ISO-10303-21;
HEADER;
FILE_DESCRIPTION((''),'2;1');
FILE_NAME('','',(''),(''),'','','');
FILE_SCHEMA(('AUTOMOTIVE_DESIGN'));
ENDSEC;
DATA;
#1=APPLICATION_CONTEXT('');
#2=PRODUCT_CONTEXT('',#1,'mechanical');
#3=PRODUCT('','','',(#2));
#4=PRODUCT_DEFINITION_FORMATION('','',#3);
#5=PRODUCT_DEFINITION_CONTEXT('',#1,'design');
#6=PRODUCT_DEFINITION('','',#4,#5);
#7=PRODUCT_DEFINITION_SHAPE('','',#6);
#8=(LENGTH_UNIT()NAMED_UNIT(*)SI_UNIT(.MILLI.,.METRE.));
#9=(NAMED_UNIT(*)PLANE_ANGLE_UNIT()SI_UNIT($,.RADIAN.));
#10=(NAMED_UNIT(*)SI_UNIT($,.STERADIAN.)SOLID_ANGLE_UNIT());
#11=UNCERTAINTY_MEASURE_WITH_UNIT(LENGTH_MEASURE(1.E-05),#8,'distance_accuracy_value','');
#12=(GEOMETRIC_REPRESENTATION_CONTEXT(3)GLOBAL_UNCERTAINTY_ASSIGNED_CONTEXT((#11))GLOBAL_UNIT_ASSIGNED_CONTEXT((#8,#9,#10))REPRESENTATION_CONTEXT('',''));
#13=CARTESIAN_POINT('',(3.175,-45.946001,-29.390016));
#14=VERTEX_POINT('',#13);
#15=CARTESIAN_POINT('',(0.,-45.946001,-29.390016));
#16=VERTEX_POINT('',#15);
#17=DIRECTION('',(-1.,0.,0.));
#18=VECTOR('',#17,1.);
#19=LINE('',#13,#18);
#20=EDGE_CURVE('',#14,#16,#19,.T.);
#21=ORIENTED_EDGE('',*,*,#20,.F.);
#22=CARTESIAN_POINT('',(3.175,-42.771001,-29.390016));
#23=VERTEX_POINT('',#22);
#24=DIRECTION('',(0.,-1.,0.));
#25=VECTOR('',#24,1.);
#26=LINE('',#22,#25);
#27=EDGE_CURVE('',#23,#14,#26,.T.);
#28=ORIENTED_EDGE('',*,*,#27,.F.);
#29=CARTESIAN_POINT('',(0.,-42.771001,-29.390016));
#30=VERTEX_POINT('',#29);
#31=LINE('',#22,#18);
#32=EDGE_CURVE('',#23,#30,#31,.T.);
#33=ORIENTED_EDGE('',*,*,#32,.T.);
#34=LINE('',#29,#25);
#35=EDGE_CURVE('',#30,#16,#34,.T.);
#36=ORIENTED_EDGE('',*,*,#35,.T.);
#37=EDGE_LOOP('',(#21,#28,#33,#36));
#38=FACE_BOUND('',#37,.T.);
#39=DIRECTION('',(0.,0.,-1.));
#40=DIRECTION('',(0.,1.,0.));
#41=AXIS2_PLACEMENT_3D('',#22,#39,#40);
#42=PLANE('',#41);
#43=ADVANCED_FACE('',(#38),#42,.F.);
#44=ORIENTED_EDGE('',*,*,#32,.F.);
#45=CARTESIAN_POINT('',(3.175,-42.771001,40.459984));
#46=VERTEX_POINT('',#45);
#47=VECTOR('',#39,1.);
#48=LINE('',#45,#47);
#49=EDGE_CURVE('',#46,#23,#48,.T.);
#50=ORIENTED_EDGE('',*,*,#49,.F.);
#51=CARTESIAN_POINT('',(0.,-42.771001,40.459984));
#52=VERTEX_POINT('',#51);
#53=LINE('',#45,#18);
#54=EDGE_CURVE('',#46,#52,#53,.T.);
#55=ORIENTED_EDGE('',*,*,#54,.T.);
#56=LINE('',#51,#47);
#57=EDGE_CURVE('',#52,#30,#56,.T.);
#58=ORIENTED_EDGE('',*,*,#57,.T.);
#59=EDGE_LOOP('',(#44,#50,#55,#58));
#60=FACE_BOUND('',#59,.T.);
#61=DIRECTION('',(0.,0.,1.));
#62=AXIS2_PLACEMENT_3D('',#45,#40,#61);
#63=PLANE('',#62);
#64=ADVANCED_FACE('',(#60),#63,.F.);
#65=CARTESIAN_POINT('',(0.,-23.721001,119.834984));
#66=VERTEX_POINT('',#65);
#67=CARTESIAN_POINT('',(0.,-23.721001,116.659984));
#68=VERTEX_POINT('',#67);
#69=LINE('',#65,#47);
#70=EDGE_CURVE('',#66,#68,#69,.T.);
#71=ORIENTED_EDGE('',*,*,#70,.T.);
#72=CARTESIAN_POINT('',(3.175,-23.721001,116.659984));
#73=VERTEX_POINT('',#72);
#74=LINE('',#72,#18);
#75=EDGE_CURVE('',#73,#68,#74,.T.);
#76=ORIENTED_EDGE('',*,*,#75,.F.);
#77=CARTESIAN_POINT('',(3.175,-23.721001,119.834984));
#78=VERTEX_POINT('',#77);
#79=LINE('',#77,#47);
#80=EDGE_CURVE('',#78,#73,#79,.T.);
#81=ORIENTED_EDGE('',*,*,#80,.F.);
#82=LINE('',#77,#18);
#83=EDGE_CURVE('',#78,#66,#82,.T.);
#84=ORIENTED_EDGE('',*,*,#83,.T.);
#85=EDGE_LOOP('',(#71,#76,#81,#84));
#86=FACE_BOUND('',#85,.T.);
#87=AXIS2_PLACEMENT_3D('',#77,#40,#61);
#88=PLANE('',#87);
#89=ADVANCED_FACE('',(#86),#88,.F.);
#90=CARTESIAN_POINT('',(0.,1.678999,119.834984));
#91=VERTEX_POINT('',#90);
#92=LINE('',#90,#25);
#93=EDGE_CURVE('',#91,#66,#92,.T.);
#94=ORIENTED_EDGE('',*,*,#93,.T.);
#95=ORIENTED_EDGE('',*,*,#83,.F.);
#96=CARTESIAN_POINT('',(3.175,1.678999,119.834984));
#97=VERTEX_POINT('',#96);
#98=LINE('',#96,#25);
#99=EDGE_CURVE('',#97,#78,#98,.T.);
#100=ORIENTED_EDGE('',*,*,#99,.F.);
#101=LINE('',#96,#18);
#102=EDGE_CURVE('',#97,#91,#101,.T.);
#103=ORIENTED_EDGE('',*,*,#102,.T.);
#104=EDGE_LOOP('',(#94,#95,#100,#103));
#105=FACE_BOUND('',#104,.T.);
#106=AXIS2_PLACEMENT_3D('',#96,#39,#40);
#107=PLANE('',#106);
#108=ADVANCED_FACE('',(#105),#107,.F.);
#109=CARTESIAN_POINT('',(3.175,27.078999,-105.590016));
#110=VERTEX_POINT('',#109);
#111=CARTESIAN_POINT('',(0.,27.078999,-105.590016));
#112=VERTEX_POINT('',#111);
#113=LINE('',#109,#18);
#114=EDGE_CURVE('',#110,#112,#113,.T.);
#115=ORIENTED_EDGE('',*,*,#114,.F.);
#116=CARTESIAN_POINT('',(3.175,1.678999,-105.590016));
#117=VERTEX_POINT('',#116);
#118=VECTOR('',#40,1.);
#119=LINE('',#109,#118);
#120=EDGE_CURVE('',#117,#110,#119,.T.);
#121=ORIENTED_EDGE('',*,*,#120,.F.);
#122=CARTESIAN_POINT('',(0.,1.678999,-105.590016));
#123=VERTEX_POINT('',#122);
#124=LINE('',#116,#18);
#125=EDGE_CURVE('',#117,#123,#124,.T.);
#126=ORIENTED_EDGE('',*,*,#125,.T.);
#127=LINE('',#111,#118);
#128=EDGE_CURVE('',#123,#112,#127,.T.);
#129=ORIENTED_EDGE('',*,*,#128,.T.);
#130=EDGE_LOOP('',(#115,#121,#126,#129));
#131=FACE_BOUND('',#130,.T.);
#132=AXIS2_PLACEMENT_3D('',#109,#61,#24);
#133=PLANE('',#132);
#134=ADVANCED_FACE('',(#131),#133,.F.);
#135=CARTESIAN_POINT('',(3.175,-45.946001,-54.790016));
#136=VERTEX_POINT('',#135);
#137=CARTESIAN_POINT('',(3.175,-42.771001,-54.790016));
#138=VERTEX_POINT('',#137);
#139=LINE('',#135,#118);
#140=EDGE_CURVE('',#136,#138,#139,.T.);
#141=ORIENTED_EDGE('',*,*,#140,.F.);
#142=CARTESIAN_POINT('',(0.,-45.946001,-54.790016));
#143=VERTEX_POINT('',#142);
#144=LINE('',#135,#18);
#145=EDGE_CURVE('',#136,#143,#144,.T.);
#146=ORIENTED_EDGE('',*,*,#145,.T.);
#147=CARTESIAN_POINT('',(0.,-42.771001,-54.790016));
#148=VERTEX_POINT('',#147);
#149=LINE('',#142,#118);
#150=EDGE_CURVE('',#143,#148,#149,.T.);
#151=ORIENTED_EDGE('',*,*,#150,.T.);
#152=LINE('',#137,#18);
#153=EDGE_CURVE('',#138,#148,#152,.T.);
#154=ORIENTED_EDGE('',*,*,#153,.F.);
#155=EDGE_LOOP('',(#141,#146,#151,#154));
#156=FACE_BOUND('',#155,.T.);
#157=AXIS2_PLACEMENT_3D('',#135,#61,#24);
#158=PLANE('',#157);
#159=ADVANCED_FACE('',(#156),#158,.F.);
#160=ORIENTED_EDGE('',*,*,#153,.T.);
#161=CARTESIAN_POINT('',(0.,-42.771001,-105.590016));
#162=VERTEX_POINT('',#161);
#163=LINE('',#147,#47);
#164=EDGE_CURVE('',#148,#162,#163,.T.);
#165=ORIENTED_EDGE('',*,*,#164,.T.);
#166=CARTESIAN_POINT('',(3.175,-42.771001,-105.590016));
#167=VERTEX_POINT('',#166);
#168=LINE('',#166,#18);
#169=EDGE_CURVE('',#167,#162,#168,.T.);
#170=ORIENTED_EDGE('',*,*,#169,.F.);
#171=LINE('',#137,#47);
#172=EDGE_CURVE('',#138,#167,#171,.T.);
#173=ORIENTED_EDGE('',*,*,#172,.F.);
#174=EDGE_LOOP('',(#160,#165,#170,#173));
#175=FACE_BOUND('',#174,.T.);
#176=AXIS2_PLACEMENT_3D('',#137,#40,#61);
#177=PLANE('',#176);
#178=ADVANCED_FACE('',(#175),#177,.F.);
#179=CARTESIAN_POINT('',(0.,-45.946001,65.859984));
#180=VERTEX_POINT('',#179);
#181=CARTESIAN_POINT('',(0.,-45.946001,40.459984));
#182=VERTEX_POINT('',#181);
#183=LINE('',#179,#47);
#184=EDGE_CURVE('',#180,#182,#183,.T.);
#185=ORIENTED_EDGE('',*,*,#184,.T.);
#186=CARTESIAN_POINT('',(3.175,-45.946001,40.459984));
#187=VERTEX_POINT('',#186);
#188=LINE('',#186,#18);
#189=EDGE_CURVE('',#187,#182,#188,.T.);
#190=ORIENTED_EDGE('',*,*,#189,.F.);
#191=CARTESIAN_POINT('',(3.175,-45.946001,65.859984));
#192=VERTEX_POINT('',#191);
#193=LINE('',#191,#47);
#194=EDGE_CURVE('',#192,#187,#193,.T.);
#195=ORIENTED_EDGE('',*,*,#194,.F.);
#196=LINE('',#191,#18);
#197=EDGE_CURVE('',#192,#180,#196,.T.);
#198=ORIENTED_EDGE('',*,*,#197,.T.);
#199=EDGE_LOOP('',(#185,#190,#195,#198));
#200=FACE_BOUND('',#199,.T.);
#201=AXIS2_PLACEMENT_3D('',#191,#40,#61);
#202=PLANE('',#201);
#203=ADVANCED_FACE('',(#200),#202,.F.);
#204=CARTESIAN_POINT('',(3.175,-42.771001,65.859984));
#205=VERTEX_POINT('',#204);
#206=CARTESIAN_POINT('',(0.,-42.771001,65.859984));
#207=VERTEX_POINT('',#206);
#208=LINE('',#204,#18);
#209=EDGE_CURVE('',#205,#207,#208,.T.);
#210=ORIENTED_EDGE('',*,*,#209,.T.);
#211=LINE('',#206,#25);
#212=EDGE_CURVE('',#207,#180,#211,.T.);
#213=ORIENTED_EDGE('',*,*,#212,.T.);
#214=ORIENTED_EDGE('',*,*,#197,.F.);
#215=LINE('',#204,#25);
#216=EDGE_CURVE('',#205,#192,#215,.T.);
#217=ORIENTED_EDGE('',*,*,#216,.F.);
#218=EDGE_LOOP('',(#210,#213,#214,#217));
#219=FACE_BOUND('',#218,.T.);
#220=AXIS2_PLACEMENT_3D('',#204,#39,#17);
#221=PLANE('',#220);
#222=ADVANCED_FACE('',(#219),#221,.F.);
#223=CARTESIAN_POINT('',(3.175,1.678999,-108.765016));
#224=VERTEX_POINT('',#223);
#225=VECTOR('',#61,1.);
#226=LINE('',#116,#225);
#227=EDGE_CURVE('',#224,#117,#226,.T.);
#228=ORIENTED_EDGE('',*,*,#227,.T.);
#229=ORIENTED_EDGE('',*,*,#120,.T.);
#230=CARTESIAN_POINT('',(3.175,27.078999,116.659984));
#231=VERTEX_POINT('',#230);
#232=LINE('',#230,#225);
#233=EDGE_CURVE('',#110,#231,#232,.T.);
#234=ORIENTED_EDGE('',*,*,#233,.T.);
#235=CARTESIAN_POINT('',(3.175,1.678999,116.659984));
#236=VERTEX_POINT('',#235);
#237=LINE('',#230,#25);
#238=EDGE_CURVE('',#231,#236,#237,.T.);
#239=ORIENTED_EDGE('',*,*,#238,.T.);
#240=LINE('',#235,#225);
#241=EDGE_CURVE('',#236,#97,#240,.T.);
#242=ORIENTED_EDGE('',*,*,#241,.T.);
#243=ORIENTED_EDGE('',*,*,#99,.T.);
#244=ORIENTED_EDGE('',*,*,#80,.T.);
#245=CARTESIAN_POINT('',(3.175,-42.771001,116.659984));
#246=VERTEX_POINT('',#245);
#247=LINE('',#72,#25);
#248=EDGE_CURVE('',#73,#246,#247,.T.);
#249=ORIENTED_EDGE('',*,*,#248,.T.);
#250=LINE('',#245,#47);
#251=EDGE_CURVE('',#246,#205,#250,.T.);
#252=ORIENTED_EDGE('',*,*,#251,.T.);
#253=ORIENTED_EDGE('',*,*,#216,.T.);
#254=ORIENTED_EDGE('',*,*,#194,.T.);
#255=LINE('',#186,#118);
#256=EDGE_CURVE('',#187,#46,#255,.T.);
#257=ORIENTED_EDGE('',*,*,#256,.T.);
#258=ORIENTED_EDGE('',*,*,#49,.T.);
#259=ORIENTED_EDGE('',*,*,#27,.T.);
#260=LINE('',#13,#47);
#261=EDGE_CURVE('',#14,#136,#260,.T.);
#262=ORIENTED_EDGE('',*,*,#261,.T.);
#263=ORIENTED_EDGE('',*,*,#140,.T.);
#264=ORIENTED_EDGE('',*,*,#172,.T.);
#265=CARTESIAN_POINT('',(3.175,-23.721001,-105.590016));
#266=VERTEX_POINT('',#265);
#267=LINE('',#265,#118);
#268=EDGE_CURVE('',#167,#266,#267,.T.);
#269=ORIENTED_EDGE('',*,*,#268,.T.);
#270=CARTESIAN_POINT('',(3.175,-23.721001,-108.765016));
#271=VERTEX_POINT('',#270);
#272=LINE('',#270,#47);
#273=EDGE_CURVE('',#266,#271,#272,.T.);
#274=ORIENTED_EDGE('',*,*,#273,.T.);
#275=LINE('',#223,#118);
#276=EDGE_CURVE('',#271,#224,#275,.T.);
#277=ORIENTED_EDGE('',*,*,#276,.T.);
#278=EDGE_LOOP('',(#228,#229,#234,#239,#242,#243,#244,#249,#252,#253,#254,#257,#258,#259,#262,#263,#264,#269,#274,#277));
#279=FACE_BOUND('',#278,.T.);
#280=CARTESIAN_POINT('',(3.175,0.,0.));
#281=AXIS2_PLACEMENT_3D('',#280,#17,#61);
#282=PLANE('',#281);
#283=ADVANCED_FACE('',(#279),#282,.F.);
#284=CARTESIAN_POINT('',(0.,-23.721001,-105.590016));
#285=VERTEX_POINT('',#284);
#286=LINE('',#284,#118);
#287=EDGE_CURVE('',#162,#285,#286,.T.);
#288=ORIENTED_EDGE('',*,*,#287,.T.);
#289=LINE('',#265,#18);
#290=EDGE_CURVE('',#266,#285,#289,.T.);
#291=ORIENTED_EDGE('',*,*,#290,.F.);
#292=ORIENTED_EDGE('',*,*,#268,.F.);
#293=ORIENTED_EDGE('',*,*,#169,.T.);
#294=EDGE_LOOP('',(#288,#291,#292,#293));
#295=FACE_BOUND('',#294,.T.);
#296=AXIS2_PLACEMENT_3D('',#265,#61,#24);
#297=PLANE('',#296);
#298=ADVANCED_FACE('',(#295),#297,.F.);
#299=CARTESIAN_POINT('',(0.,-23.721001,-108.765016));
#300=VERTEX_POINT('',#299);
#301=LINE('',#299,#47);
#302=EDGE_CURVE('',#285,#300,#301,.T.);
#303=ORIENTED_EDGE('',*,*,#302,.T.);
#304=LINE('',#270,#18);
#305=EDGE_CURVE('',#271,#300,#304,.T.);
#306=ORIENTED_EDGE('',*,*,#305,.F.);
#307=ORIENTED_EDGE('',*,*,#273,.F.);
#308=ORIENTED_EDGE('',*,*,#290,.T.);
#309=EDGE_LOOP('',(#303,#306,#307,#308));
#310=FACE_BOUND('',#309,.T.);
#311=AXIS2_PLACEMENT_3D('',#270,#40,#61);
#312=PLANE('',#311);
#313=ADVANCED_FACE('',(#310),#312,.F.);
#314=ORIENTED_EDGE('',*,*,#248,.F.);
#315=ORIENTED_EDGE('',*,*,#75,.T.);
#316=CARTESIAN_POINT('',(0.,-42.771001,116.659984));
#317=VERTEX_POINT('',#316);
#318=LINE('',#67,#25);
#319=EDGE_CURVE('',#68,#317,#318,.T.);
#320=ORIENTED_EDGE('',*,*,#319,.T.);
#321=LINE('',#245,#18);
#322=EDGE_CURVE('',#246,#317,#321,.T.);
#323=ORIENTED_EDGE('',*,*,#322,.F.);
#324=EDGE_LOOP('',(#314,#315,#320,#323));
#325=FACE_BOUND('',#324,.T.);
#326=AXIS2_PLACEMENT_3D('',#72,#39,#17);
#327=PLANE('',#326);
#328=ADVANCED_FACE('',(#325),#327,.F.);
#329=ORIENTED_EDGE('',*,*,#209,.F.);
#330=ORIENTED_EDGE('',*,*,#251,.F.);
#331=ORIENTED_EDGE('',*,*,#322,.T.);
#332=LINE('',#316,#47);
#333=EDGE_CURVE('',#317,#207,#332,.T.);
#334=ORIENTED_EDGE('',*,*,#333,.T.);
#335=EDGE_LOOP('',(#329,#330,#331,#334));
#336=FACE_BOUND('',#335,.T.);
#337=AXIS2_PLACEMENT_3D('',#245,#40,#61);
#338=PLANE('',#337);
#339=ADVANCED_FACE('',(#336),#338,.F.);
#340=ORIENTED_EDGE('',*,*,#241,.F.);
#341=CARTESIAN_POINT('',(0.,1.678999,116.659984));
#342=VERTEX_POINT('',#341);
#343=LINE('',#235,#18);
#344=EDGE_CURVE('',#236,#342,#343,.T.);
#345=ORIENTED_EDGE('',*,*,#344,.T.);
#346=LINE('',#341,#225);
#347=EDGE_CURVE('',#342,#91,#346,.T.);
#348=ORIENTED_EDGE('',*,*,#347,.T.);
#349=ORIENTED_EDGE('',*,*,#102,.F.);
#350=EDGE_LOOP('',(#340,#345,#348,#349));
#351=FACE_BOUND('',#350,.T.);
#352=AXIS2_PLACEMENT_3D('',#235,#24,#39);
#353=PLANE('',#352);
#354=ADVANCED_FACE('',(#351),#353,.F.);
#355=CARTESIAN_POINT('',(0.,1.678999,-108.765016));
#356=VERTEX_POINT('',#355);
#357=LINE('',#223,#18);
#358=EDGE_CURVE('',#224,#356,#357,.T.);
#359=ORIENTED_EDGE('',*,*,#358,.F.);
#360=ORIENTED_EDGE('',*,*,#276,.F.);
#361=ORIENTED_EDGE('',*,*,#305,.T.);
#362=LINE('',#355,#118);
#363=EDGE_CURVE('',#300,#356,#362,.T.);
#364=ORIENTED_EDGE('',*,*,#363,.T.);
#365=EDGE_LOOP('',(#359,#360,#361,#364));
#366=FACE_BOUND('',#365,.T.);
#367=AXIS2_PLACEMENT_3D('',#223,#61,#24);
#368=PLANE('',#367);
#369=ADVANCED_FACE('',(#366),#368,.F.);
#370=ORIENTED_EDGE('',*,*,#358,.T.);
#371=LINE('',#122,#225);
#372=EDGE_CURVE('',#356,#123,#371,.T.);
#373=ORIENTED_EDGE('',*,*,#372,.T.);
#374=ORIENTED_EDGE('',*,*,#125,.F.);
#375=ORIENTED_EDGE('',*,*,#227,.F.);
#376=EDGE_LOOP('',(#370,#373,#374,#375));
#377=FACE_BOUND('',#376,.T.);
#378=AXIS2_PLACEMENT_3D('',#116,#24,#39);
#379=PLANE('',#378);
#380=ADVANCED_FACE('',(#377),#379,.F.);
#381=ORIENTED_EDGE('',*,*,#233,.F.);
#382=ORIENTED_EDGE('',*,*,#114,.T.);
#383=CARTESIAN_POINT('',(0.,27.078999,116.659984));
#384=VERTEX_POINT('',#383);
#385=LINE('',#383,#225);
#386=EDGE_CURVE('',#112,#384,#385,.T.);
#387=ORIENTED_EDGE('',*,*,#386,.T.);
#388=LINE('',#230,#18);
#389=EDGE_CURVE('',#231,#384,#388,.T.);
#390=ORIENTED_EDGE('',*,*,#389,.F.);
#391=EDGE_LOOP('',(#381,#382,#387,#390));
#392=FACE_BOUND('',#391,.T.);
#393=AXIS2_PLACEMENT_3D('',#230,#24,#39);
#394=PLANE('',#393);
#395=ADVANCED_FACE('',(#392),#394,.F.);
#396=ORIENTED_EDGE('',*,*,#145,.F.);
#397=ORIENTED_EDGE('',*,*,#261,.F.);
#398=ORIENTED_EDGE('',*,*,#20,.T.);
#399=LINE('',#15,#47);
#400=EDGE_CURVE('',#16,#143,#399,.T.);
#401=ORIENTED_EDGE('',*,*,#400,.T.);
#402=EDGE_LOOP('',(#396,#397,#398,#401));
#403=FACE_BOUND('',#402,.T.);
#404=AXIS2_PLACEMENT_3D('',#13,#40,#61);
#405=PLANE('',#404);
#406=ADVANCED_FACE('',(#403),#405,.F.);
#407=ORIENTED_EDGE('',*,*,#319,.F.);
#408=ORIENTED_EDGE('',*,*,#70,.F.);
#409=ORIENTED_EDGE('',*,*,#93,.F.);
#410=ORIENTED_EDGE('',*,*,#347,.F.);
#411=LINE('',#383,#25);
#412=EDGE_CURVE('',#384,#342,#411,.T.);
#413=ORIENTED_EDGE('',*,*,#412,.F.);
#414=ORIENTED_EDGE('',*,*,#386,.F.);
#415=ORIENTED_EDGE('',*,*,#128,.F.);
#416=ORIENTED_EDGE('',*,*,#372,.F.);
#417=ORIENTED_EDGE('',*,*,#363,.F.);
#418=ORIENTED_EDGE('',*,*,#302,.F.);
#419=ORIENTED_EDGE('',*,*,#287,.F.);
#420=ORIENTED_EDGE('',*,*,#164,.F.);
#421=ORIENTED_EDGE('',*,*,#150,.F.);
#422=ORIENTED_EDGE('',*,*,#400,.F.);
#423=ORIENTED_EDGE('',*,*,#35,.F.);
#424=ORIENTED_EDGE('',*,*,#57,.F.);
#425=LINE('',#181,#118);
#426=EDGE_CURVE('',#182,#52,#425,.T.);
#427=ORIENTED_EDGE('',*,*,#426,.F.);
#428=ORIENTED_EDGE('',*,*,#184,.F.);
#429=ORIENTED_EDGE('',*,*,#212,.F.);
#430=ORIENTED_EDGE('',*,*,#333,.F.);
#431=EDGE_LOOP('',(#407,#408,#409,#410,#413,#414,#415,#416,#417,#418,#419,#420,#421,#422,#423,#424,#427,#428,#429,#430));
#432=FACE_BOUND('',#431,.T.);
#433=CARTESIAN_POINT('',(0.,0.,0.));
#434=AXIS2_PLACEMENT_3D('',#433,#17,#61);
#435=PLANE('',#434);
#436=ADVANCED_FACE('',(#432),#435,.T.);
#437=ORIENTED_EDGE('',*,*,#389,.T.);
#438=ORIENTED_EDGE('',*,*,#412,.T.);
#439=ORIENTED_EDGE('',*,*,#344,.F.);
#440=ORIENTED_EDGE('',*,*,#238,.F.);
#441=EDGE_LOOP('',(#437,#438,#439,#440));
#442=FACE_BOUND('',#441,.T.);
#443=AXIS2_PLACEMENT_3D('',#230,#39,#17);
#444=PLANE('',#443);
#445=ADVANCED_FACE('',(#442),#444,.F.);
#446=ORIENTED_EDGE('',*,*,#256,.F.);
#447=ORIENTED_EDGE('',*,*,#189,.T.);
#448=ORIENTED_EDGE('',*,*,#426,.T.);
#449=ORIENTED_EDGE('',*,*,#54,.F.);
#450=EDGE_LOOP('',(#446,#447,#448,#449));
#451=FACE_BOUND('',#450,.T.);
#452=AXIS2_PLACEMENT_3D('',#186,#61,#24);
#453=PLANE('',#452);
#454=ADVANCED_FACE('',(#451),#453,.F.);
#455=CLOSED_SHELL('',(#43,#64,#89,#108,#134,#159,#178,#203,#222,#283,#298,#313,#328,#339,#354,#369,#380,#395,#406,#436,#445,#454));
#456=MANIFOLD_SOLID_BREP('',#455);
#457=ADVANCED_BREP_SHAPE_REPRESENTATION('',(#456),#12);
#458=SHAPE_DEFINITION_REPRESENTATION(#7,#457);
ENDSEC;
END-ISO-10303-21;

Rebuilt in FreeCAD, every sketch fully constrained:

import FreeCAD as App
import Part
import Sketcher
Q = App.Units.Quantity

doc = App.newDocument("Part")
body = doc.addObject("PartDesign::Body", "Body")

# Sketch on YZ plane
sketch1 = body.newObject("Sketcher::SketchObject", "Sketch")
sketch1.AttachmentSupport = (doc.getObject("YZ_Plane"), [""])
sketch1.MapMode = "FlatFace"
sketch1.addGeometry([
    Part.LineSegment(App.Vector(27.1, 116.7, 0), App.Vector(1.7, 116.7, 0)),  # 0
    Part.LineSegment(App.Vector(1.7, 116.7, 0), App.Vector(1.7, 119.8, 0)),  # 1
    Part.LineSegment(App.Vector(1.7, 119.8, 0), App.Vector(-23.7, 119.8, 0)),  # 2
    Part.LineSegment(App.Vector(-23.7, 119.8, 0), App.Vector(-23.7, 116.7, 0)),  # 3
    Part.LineSegment(App.Vector(-23.7, 116.7, 0), App.Vector(-42.8, 116.7, 0)),  # 4
    Part.LineSegment(App.Vector(-42.8, 116.7, 0), App.Vector(-42.8, 65.9, 0)),  # 5
    Part.LineSegment(App.Vector(-42.8, 65.9, 0), App.Vector(-45.9, 65.9, 0)),  # 6
    Part.LineSegment(App.Vector(-45.9, 65.9, 0), App.Vector(-45.9, 40.5, 0)),  # 7
    Part.LineSegment(App.Vector(-45.9, 40.5, 0), App.Vector(-42.8, 40.5, 0)),  # 8
    Part.LineSegment(App.Vector(-42.8, 40.5, 0), App.Vector(-42.8, -29.4, 0)),  # 9
    Part.LineSegment(App.Vector(-42.8, -29.4, 0), App.Vector(-45.9, -29.4, 0)),  # 10
    Part.LineSegment(App.Vector(-45.9, -29.4, 0), App.Vector(-45.9, -54.8, 0)),  # 11
    Part.LineSegment(App.Vector(-45.9, -54.8, 0), App.Vector(-42.8, -54.8, 0)),  # 12
    Part.LineSegment(App.Vector(-42.8, -54.8, 0), App.Vector(-42.8, -105.6, 0)),  # 13
    Part.LineSegment(App.Vector(-42.8, -105.6, 0), App.Vector(-23.7, -105.6, 0)),  # 14
    Part.LineSegment(App.Vector(-23.7, -105.6, 0), App.Vector(-23.7, -108.8, 0)),  # 15
    Part.LineSegment(App.Vector(-23.7, -108.8, 0), App.Vector(1.7, -108.8, 0)),  # 16
    Part.LineSegment(App.Vector(1.7, -108.8, 0), App.Vector(1.7, -105.6, 0)),  # 17
    Part.LineSegment(App.Vector(1.7, -105.6, 0), App.Vector(27.1, -105.6, 0)),  # 18
    Part.LineSegment(App.Vector(27.1, -105.6, 0), App.Vector(27.1, 116.7, 0)),  # 19
], False)
sketch1.addConstraint([
    Sketcher.Constraint("Coincident", 0, 2, 1, 1),
    Sketcher.Constraint("Coincident", 1, 2, 2, 1),
    Sketcher.Constraint("Coincident", 2, 2, 3, 1),
    Sketcher.Constraint("Coincident", 3, 2, 4, 1),
    Sketcher.Constraint("Coincident", 4, 2, 5, 1),
    Sketcher.Constraint("Coincident", 5, 2, 6, 1),
    Sketcher.Constraint("Coincident", 6, 2, 7, 1),
    Sketcher.Constraint("Coincident", 7, 2, 8, 1),
    Sketcher.Constraint("Coincident", 8, 2, 9, 1),
    Sketcher.Constraint("Coincident", 9, 2, 10, 1),
    Sketcher.Constraint("Coincident", 10, 2, 11, 1),
    Sketcher.Constraint("Coincident", 11, 2, 12, 1),
    Sketcher.Constraint("Coincident", 12, 2, 13, 1),
    Sketcher.Constraint("Coincident", 13, 2, 14, 1),
    Sketcher.Constraint("Coincident", 14, 2, 15, 1),
    Sketcher.Constraint("Coincident", 15, 2, 16, 1),
    Sketcher.Constraint("Coincident", 16, 2, 17, 1),
    Sketcher.Constraint("Coincident", 17, 2, 18, 1),
    Sketcher.Constraint("Coincident", 18, 2, 19, 1),
    Sketcher.Constraint("Coincident", 19, 2, 0, 1),
    Sketcher.Constraint("Horizontal", 0),
    Sketcher.Constraint("Vertical", 1),
    Sketcher.Constraint("Horizontal", 2),
    Sketcher.Constraint("Vertical", 3),
    Sketcher.Constraint("Horizontal", 4),
    Sketcher.Constraint("Vertical", 5),
    Sketcher.Constraint("Horizontal", 6),
    Sketcher.Constraint("Vertical", 7),
    Sketcher.Constraint("Horizontal", 8),
    Sketcher.Constraint("Vertical", 9),
    Sketcher.Constraint("Horizontal", 10),
    Sketcher.Constraint("Vertical", 11),
    Sketcher.Constraint("Horizontal", 12),
    Sketcher.Constraint("Vertical", 13),
    Sketcher.Constraint("Horizontal", 14),
    Sketcher.Constraint("Vertical", 15),
    Sketcher.Constraint("Horizontal", 16),
    Sketcher.Constraint("Vertical", 17),
    Sketcher.Constraint("Horizontal", 18),
    Sketcher.Constraint("Vertical", 19),
    Sketcher.Constraint("Horizontal", 0, 2, 3, 2),
    Sketcher.Constraint("Horizontal", 14, 2, 17, 2),
    Sketcher.Constraint("Vertical", 5, 2, 8, 2),
    Sketcher.Constraint("Vertical", 7, 2, 10, 2),
    Sketcher.Constraint("Vertical", 9, 2, 12, 2),
    Sketcher.Constraint("Vertical", 3, 2, 14, 2),
    Sketcher.Constraint("Vertical", 1, 2, 16, 2),
    Sketcher.Constraint("Equal", 0, 2),
    Sketcher.Constraint("Equal", 12, 1),
    Sketcher.Constraint("Equal", 18, 7),
    Sketcher.Constraint("Equal", 7, 11),
    Sketcher.Constraint("Equal", 5, 13),
    Sketcher.Constraint("Equal", 3, 15),
    Sketcher.Constraint("DistanceX", 0, 2, 0, 1, Q("1 in")),
    Sketcher.Constraint("DistanceY", 5, 2, 5, 1, Q("2 in")),
    Sketcher.Constraint("DistanceX", 4, 2, 4, 1, Q("0.75 in")),
    Sketcher.Constraint("DistanceY", 9, 2, 9, 1, Q("2.75 in")),
    Sketcher.Constraint("DistanceX", 6, 2, 6, 1, Q("0.125 in")),
    Sketcher.Constraint("DistanceX", -1, 1, 0, 2, 1.678999),
    Sketcher.Constraint("DistanceY", -1, 1, 0, 2, 116.659984),
])
pad1 = body.newObject("PartDesign::Pad", "Pad")
pad1.Profile = sketch1
pad1.Length = Q("0.125 in")

doc.recompute()
